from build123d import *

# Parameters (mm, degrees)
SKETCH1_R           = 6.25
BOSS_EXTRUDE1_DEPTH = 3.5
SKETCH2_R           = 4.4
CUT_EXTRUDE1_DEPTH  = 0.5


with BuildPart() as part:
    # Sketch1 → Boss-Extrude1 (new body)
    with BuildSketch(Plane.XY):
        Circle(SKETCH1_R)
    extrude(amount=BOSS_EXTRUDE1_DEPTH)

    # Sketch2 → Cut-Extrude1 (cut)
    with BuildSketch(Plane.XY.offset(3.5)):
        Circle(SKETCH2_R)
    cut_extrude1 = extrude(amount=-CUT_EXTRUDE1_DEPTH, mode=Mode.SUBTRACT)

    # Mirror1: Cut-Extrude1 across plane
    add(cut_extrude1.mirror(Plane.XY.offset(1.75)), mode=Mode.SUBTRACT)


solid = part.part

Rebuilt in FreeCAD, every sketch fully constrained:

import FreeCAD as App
import Part
import Sketcher

V = App.Vector

doc = App.newDocument("Part")
body = doc.addObject("PartDesign::Body", "Body")

# Sketch on XY plane
sketch1 = doc.addObject("Sketcher::SketchObject", "Sketch")
body.addObject(sketch1)
sketch1.AttachmentSupport = (doc.XY_Plane, [""])
sketch1.MapMode = "FlatFace"
sketch1.addGeometry(Part.Circle(V(0, 0, 0), V(0, 0, 1), 6), False)
sketch1.addConstraint([
    Sketcher.Constraint("Coincident", 0, 3, -1, 1),
    Sketcher.Constraint("Diameter", 0, 12.5),
])
pad1 = doc.addObject("PartDesign::Pad", "Pad")
body.addObject(pad1)
pad1.Profile = sketch1
pad1.Length = 3.5

# Sketch on XY plane
sketch2 = doc.addObject("Sketcher::SketchObject", "Sketch001")
body.addObject(sketch2)
sketch2.AttachmentSupport = (doc.XY_Plane, [""])
sketch2.MapMode = "FlatFace"
sketch2.AttachmentOffset = App.Placement(V(0, 0, 3.5), App.Rotation())
sketch2.addGeometry(Part.Circle(V(0, 0, 0), V(0, 0, 1), 4.4), False)
sketch2.addConstraint([
    Sketcher.Constraint("Coincident", 0, 3, -1, 1),
    Sketcher.Constraint("Diameter", 0, 8.8),
])
pocket1 = doc.addObject("PartDesign::Pocket", "Pocket")
body.addObject(pocket1)
pocket1.Profile = sketch2
pocket1.Length = 0.5
doc.recompute()

datumplane = doc.addObject("PartDesign::Plane", "DatumPlane")
body.addObject(datumplane)
datumplane.AttachmentSupport = (doc.XY_Plane, [""])
datumplane.MapMode = "FlatFace"
datumplane.AttachmentOffset = App.Placement(V(0, 0, 1.75), App.Rotation())
mirrored = doc.addObject("PartDesign::Mirrored", "Mirrored")
body.addObject(mirrored)
mirrored.Originals = [pocket1]
mirrored.MirrorPlane = (datumplane, [""])
body.Tip = mirrored

doc.recompute()
